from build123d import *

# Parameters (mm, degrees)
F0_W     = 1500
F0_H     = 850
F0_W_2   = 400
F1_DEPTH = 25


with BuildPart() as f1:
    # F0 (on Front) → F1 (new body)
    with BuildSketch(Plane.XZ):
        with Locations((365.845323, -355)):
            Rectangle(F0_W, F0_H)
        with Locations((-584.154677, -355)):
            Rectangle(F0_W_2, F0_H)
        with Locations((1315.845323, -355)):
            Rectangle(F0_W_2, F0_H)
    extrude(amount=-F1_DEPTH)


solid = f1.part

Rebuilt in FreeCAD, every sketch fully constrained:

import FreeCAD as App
import Part
import Sketcher


def add_polygon(sketch, points):
    """Adds a closed chain of lines whose ends are joined by coincident constraints."""
    first, n = sketch.GeometryCount, len(points)
    for a, b in zip(points, points[1:] + points[:1]):
        sketch.addGeometry(Part.LineSegment(App.Vector(*a, 0), App.Vector(*b, 0)), False)
    for i in range(n):
        sketch.addConstraint(Sketcher.Constraint("Coincident", first + i, 2, first + (i + 1) % n, 1))

doc = App.newDocument("Part")
params = doc.addObject("Spreadsheet::Sheet", "Params")
for row, (alias, value) in enumerate([
    ("sketch1_width", "2300 mm"),
    ("sketch1_height", "850 mm"),
    ("pad1_length", "25 mm"),
], start=1):
    params.set(f"A{row}", alias)
    params.set(f"B{row}", "=" + value)
    params.setAlias(f"B{row}", alias)

body = doc.addObject("PartDesign::Body", "Body")

sketch1 = body.newObject("Sketcher::SketchObject", "Sketch")
sketch1.AttachmentSupport = (doc.getObject("XZ_Plane"), [""])
sketch1.MapMode = "FlatFace"
add_polygon(sketch1, [(-784, 70), (-784, -780), (1516, -780), (1516, 70)])
sketch1.addConstraint([
    Sketcher.Constraint("Vertical", 0),
    Sketcher.Constraint("Horizontal", 1),
    Sketcher.Constraint("Vertical", 2),
    Sketcher.Constraint("Horizontal", 3),
    Sketcher.Constraint("DistanceX", 1, 1, 1, 2, 2300.0),
    Sketcher.Constraint("DistanceY", 0, 2, 0, 1, 850.0),
    Sketcher.Constraint("DistanceY", 0, 2, -1, 1, 780.0),
    Sketcher.Constraint("DistanceX", 0, 2, -1, 1, 784.154677),
])
sketch1.setExpression("Constraints[8]", "Params.sketch1_width")
sketch1.setExpression("Constraints[9]", "Params.sketch1_height")
pad1 = body.newObject("PartDesign::Pad", "Pad")
pad1.Profile = sketch1
pad1.setExpression("Length", "Params.pad1_length")
pad1.Reversed = True

doc.recompute()
